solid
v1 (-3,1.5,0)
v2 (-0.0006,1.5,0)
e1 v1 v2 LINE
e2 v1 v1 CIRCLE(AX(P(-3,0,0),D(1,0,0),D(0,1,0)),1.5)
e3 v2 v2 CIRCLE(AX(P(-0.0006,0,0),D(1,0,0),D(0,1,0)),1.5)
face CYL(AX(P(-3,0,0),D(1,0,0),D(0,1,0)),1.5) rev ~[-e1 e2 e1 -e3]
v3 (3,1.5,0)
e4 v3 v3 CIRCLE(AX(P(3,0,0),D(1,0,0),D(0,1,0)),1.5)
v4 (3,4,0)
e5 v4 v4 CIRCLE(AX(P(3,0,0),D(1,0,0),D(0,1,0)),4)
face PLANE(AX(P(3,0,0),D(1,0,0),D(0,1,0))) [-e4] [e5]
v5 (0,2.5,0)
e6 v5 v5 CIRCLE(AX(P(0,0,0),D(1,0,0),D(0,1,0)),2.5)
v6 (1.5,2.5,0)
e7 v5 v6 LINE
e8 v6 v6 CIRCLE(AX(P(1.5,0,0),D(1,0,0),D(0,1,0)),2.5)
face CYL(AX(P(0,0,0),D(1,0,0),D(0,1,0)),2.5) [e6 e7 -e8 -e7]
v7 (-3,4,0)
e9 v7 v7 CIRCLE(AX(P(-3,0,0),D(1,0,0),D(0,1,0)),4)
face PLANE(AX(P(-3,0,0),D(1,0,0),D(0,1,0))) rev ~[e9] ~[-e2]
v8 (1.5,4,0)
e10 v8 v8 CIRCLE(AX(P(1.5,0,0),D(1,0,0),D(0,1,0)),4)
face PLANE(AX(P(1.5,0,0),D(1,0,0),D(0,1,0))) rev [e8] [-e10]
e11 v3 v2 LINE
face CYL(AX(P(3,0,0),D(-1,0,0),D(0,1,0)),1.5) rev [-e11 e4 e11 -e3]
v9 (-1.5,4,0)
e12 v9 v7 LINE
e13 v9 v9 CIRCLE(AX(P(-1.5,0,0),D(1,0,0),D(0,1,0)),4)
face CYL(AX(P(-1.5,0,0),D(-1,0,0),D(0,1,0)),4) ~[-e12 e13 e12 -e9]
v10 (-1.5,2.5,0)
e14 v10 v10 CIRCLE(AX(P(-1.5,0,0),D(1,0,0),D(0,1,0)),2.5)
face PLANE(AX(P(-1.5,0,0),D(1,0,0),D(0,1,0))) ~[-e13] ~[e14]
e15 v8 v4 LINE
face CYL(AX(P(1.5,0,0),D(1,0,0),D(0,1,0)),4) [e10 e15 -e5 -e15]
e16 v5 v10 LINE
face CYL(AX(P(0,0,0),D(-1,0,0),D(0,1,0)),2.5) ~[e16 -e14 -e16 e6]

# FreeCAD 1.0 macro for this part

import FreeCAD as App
import Part
import Sketcher

V = App.Vector


def add_polygon(sketch, points):
    """Adds a closed chain of lines whose ends are joined by coincident constraints."""
    first, n = sketch.GeometryCount, len(points)
    for a, b in zip(points, points[1:] + points[:1]):
        sketch.addGeometry(Part.LineSegment(App.Vector(*a, 0), App.Vector(*b, 0)), False)
    for i in range(n):
        sketch.addConstraint(Sketcher.Constraint("Coincident", first + i, 2, first + (i + 1) % n, 1))

doc = App.newDocument("Part")
params = doc.addObject("Spreadsheet::Sheet", "Params")
for row, (alias, value) in enumerate([
    ("sketch1_width", "1.5 mm"),
    ("sketch1_height", "2.5 mm"),
    ("revolution_angle", "360 deg"),
], start=1):
    params.set(f"A{row}", alias)
    params.set(f"B{row}", "=" + value)
    params.setAlias(f"B{row}", alias)

body = doc.addObject("PartDesign::Body", "Body")

# Sketch on XY plane
sketch1 = body.newObject("Sketcher::SketchObject", "Sketch")
sketch1.AttachmentSupport = (doc.getObject("XY_Plane"), [""])
sketch1.MapMode = "FlatFace"
add_polygon(sketch1, [(1.5, 2.5), (-1.5, 2.5), (-1.5, 4), (-3, 4), (-3, 1.5), (3, 1.5), (3, 4), (1.5, 4)])  # lines 0-7
sketch1.addConstraint(Sketcher.Constraint("Horizontal", 0))
sketch1.addConstraint(Sketcher.Constraint("Vertical", 1))
sketch1.addConstraint(Sketcher.Constraint("Horizontal", 2))
sketch1.addConstraint(Sketcher.Constraint("Vertical", 3))
sketch1.addConstraint(Sketcher.Constraint("Horizontal", 4))
sketch1.addConstraint(Sketcher.Constraint("Vertical", 5))
sketch1.addConstraint(Sketcher.Constraint("Horizontal", 6))
sketch1.addConstraint(Sketcher.Constraint("Vertical", 7))
sketch1.addConstraint(Sketcher.Constraint("Symmetric", 2, 2, 5, 2, -2))
sketch1.addConstraint(Sketcher.Constraint("Equal", 2, 6))
sketch1.addConstraint(Sketcher.Constraint("Equal", 6, 1))
sketch1.addConstraint(Sketcher.Constraint("DistanceX", 2, 2, 2, 1, 1.5))
sketch1.addConstraint(Sketcher.Constraint("DistanceY", 3, 2, 3, 1, 2.5))
sketch1.addConstraint(Sketcher.Constraint("DistanceX", 0, 2, -1, 1, 1.5))
sketch1.addConstraint(Sketcher.Constraint("DistanceY", -1, 1, 0, 2, 2.5))
sketch1.setExpression("Constraints[19]", "Params.sketch1_width")
sketch1.setExpression("Constraints[20]", "Params.sketch1_height")
revolution = body.newObject("PartDesign::Revolution", "Revolution")
revolution.Profile = sketch1
revolution.ReferenceAxis = (sketch1, ["H_Axis"])
revolution.setExpression("Angle", "Params.revolution_angle")

doc.recompute()
